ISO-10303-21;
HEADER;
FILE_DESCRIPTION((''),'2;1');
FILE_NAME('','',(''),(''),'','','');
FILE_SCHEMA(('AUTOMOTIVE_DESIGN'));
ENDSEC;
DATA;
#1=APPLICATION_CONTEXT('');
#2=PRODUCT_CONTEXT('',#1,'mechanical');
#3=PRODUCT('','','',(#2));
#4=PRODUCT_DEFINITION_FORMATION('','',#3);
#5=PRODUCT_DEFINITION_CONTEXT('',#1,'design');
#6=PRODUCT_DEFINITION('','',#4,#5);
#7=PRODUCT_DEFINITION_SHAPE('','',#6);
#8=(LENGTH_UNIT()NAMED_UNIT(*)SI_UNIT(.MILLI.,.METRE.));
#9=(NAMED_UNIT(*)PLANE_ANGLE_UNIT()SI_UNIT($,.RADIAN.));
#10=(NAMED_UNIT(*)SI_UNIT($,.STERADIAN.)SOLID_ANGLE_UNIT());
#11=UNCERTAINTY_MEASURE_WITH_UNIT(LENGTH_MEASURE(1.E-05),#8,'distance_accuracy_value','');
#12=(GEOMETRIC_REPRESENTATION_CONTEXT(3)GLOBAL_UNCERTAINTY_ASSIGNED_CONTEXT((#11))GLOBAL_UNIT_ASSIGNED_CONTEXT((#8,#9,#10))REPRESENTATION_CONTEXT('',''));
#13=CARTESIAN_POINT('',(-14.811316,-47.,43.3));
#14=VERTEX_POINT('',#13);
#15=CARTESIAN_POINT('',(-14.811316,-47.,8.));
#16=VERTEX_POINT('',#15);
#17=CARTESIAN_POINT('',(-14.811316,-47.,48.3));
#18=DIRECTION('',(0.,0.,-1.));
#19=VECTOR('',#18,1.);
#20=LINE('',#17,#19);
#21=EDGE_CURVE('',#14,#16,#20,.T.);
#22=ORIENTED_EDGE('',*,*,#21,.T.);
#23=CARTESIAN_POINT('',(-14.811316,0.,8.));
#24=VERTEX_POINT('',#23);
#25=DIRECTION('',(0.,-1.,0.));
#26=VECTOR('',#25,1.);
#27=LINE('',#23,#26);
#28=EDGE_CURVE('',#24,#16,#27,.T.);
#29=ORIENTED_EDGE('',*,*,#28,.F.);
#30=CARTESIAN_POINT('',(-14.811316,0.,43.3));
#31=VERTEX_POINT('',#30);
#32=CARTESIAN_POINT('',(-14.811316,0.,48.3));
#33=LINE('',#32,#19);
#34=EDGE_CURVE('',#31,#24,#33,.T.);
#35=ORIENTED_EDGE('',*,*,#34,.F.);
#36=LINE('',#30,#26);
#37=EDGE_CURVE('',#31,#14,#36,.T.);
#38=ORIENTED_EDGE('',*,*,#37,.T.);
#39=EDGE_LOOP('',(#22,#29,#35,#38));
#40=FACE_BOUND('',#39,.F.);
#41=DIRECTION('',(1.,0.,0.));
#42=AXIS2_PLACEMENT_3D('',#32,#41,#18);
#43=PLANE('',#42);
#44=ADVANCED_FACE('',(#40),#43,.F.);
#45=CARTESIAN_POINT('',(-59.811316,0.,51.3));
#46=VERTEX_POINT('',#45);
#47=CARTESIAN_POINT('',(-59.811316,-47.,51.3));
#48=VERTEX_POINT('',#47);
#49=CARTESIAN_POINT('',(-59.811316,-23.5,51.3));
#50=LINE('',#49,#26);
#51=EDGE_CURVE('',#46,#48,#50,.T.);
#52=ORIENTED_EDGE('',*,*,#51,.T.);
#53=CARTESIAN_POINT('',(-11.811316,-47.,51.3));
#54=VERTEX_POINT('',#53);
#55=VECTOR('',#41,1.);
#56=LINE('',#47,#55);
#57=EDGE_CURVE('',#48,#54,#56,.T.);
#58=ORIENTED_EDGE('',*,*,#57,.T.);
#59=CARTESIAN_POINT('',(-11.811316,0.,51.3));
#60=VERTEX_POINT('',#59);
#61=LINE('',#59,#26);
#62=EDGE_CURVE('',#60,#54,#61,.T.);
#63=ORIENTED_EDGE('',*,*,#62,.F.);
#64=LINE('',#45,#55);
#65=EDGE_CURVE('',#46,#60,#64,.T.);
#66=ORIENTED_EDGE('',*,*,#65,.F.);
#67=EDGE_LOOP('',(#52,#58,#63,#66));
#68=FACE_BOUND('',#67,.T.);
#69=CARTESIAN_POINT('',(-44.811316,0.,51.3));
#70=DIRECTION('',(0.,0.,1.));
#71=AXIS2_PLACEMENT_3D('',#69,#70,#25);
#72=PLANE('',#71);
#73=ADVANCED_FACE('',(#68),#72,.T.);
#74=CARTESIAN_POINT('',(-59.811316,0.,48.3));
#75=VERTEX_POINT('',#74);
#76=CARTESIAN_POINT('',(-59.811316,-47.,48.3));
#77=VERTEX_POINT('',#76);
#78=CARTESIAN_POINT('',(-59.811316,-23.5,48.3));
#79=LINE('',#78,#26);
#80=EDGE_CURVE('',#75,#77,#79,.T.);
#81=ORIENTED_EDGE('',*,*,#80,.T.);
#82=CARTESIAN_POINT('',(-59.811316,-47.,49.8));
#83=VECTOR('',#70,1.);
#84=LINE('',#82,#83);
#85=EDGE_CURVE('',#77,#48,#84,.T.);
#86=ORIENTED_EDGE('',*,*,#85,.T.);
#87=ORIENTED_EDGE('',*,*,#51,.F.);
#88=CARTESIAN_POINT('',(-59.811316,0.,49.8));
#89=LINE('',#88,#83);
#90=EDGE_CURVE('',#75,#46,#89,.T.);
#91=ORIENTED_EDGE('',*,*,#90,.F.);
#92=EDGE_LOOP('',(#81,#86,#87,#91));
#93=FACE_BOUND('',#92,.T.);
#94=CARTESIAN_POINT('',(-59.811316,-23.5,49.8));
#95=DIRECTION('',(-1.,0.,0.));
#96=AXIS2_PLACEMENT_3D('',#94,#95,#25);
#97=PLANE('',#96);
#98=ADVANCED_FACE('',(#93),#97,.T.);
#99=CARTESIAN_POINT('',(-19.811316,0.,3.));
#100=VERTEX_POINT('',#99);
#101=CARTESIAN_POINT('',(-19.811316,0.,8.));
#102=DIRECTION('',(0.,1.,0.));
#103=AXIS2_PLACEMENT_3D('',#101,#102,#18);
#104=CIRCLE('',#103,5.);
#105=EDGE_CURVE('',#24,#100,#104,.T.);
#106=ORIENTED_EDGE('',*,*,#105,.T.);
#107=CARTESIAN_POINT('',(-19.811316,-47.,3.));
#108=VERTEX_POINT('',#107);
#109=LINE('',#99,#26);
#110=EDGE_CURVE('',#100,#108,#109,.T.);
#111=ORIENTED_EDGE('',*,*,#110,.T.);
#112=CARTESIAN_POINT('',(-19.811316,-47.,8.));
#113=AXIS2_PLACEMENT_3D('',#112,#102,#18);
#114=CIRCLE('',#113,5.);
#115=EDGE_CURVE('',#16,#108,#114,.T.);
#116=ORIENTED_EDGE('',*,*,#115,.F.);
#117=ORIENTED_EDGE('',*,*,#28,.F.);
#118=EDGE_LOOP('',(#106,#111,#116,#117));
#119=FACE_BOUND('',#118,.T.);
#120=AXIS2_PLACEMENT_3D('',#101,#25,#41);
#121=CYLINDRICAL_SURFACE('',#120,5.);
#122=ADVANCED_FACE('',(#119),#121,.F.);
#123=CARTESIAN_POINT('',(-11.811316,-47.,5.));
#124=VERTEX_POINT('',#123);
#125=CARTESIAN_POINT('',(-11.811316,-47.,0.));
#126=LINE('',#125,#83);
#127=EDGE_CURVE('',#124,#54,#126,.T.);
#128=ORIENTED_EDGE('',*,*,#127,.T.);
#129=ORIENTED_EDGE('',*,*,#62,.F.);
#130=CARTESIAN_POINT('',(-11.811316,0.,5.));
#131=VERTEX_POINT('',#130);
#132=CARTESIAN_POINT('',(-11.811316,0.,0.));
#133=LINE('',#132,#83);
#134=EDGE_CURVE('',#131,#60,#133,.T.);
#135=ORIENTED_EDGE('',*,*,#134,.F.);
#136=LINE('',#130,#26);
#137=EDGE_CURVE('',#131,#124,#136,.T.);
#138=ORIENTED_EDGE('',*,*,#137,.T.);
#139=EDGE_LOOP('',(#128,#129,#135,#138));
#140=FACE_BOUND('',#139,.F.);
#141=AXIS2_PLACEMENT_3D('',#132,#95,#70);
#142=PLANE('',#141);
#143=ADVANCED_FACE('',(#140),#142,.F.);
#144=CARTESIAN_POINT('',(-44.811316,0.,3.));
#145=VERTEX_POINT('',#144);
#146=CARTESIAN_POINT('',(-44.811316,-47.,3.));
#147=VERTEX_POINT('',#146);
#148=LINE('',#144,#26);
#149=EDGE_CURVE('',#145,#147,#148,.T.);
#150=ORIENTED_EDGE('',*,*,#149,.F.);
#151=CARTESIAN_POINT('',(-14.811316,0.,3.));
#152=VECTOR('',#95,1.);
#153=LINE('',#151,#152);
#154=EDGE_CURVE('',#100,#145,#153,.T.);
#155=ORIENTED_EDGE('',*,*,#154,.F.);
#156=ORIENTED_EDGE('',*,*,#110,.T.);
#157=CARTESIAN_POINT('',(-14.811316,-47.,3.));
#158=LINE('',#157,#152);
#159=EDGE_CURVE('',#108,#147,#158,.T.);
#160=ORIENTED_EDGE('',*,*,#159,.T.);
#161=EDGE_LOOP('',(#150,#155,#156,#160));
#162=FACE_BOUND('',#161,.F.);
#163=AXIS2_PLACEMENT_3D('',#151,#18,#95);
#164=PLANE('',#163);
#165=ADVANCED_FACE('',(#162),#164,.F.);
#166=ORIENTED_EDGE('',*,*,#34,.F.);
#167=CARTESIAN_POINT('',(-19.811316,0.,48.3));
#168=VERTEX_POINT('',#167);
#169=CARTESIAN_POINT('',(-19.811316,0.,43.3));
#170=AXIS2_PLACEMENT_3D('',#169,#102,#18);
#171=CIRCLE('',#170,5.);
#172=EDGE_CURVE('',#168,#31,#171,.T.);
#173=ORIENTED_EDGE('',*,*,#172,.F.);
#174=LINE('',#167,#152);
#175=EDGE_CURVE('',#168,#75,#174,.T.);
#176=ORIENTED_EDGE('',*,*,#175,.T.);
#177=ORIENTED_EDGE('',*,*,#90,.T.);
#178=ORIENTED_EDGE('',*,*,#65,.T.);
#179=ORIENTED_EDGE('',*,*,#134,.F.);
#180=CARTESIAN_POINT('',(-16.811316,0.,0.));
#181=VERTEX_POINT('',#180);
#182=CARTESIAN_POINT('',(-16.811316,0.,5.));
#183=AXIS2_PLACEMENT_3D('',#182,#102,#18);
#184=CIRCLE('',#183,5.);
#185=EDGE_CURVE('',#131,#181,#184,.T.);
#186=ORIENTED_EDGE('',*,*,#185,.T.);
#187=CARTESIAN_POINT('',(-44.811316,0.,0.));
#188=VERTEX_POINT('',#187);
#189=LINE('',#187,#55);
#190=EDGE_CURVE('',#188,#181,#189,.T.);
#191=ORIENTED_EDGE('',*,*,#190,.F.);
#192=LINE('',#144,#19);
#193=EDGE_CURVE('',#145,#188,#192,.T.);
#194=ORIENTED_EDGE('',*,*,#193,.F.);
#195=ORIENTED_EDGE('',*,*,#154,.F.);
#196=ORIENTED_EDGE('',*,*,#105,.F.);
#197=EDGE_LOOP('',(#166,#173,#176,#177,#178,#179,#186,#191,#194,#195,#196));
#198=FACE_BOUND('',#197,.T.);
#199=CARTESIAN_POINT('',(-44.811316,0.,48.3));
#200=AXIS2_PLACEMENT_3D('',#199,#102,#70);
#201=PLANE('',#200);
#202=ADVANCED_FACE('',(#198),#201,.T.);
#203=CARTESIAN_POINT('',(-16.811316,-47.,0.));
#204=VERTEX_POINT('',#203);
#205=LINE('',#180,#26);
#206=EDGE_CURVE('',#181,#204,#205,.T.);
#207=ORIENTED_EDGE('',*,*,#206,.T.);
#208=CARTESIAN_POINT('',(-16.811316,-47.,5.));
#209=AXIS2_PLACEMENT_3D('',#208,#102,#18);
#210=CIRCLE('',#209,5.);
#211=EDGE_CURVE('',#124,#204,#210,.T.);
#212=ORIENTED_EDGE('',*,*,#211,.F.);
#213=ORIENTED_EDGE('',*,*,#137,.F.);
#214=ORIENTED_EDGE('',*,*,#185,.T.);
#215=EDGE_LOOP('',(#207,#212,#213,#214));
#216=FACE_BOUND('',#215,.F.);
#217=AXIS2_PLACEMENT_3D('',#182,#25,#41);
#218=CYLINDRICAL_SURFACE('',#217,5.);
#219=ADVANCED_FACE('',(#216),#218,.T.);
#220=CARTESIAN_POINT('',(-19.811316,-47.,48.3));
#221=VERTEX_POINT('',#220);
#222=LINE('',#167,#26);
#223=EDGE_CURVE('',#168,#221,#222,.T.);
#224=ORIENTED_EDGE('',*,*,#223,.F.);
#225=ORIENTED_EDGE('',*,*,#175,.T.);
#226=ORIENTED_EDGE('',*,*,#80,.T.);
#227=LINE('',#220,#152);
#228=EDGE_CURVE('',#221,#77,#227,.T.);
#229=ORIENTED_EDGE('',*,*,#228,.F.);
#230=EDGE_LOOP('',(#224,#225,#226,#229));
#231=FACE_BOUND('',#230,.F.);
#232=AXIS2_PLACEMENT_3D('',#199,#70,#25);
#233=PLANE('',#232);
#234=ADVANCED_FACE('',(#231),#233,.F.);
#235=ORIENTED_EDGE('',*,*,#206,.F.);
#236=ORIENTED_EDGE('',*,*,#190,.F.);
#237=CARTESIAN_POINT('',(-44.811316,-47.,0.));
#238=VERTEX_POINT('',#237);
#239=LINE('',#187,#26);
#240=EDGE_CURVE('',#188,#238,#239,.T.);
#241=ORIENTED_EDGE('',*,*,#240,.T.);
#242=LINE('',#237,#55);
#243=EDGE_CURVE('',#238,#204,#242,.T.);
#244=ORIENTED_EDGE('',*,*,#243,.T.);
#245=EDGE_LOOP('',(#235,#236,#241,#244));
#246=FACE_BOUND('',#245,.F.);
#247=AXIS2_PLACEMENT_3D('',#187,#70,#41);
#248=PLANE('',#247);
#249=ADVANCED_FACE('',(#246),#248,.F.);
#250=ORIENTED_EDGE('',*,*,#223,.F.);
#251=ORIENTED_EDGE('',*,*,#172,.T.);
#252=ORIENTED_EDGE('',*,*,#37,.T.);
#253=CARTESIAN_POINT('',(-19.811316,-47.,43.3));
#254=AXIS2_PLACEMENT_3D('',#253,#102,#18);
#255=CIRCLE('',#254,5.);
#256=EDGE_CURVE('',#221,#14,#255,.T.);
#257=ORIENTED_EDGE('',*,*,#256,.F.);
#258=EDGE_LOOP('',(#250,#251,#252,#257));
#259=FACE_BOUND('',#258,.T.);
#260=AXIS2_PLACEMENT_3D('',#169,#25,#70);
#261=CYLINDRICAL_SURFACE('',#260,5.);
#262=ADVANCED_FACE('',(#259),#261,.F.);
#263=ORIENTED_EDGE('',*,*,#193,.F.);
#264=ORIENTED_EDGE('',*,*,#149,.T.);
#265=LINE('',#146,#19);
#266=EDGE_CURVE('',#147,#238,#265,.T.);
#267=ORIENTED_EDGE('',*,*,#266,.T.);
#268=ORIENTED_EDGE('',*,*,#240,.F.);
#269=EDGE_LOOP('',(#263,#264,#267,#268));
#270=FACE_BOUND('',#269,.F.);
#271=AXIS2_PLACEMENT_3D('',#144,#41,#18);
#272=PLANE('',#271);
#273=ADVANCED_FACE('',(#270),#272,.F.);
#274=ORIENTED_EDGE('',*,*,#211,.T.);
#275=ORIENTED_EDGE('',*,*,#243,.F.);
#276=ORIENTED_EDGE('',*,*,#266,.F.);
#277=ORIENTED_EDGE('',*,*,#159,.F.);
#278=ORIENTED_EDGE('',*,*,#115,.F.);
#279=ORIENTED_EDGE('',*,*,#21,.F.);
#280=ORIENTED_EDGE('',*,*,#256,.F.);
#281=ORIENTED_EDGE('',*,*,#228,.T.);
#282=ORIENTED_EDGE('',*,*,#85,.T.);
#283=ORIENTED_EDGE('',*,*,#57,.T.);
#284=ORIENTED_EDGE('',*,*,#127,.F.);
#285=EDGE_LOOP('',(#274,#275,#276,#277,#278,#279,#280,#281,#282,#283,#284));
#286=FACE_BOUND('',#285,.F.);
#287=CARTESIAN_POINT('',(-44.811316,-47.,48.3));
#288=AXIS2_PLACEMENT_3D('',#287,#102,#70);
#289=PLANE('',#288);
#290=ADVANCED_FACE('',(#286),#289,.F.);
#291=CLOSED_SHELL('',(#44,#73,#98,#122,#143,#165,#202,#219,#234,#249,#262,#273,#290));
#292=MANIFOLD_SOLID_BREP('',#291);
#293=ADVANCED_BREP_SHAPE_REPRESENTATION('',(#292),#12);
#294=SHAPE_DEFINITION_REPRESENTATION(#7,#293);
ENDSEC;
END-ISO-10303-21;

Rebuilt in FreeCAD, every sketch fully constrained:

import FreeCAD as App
import Part
import Sketcher

V = App.Vector


def edges_at(feature, points):
    """Names of the edges that pass closest to the given points."""
    edges = feature.Shape.Edges
    near = lambda p: min(range(len(edges)), key=lambda i: edges[i].distToShape(Part.Vertex(*p))[0])
    return sorted({f"Edge{near(p) + 1}" for p in points})

doc = App.newDocument("Part")
body = doc.addObject("PartDesign::Body", "Body")

# Sketch on XZ plane
sketch1 = doc.addObject("Sketcher::SketchObject", "Sketch")
body.addObject(sketch1)
sketch1.AttachmentSupport = (doc.XZ_Plane, [""])
sketch1.MapMode = "FlatFace"
sketch1.addGeometry(Part.LineSegment(V(-11.8, 51.3, 0), V(-44.8, 51.3, 0)), False)
sketch1.addGeometry(Part.LineSegment(V(-44.8, 51.3, 0), V(-44.8, 48.3, 0)), False)
sketch1.addGeometry(Part.LineSegment(V(-44.8, 48.3, 0), V(-14.8, 48.3, 0)), False)
sketch1.addGeometry(Part.LineSegment(V(-14.8, 48.3, 0), V(-14.8, 3, 0)), False)
sketch1.addGeometry(Part.LineSegment(V(-14.8, 3, 0), V(-44.8, 3, 0)), False)
sketch1.addGeometry(Part.LineSegment(V(-44.8, 3, 0), V(-44.8, 0, 0)), False)
sketch1.addGeometry(Part.LineSegment(V(-44.8, 0, 0), V(-11.8, 0, 0)), False)
sketch1.addGeometry(Part.LineSegment(V(-11.8, 0, 0), V(-11.8, 51.3, 0)), False)
sketch1.addConstraint(Sketcher.Constraint("Coincident", 0, 2, 1, 1))
sketch1.addConstraint(Sketcher.Constraint("Coincident", 1, 2, 2, 1))
sketch1.addConstraint(Sketcher.Constraint("Coincident", 2, 2, 3, 1))
sketch1.addConstraint(Sketcher.Constraint("Coincident", 3, 2, 4, 1))
sketch1.addConstraint(Sketcher.Constraint("Coincident", 4, 2, 5, 1))
sketch1.addConstraint(Sketcher.Constraint("Coincident", 5, 2, 6, 1))
sketch1.addConstraint(Sketcher.Constraint("Coincident", 6, 2, 7, 1))
sketch1.addConstraint(Sketcher.Constraint("Coincident", 7, 2, 0, 1))
sketch1.addConstraint(Sketcher.Constraint("Horizontal", 0))
sketch1.addConstraint(Sketcher.Constraint("Vertical", 1))
sketch1.addConstraint(Sketcher.Constraint("Horizontal", 2))
sketch1.addConstraint(Sketcher.Constraint("Vertical", 3))
sketch1.addConstraint(Sketcher.Constraint("Horizontal", 4))
sketch1.addConstraint(Sketcher.Constraint("Vertical", 5))
sketch1.addConstraint(Sketcher.Constraint("Horizontal", 6))
sketch1.addConstraint(Sketcher.Constraint("Vertical", 7))
sketch1.addConstraint(Sketcher.Constraint("PointOnObject", 5, 2, -1))
sketch1.addConstraint(Sketcher.Constraint("Vertical", 1, 2, 4, 2))
sketch1.addConstraint(Sketcher.Constraint("Equal", 1, 5))
sketch1.addConstraint(Sketcher.Constraint("DistanceX", 0, 2, 0, 1, 33.0))
sketch1.addConstraint(Sketcher.Constraint("DistanceX", 2, 1, 2, 2, 30.0))
sketch1.addConstraint(Sketcher.Constraint("DistanceY", 1, 2, 1, 1, 3.0))
sketch1.addConstraint(Sketcher.Constraint("DistanceY", 3, 2, 3, 1, 45.3))
sketch1.addConstraint(Sketcher.Constraint("DistanceX", 0, 2, -1, 1, 44.811316))
pad1 = doc.addObject("PartDesign::Pad", "Pad")
body.addObject(pad1)
pad1.Profile = sketch1
pad1.Length = 47
doc.recompute()

fillet = doc.addObject("PartDesign::Fillet", "Fillet")
body.addObject(fillet)
fillet.Base = (pad1, edges_at(pad1, [(-14.811, -23.5, 3), (-14.811, -23.5, 48.3)]))
fillet.Radius = 5
doc.recompute()

fillet2 = doc.addObject("PartDesign::Fillet", "Fillet001")
body.addObject(fillet2)
fillet2.Base = (fillet, edges_at(fillet, [(-11.811, -23.5, 0)]))
fillet2.Radius = 5

# Sketch on YZ plane
sketch2 = doc.addObject("Sketcher::SketchObject", "Sketch001")
body.addObject(sketch2)
sketch2.AttachmentSupport = (doc.YZ_Plane, [""])
sketch2.MapMode = "FlatFace"
sketch2.AttachmentOffset = App.Placement(V(0, 0, -44.811316), App.Rotation())
sketch2.addGeometry(Part.LineSegment(V(0, 51.3, 0), V(0, 48.3, 0)), False)
sketch2.addGeometry(Part.LineSegment(V(0, 48.3, 0), V(-47, 48.3, 0)), False)
sketch2.addGeometry(Part.LineSegment(V(-47, 48.3, 0), V(-47, 51.3, 0)), False)
sketch2.addGeometry(Part.LineSegment(V(-47, 51.3, 0), V(0, 51.3, 0)), False)
sketch2.addConstraint(Sketcher.Constraint("Coincident", 0, 2, 1, 1))
sketch2.addConstraint(Sketcher.Constraint("Coincident", 1, 2, 2, 1))
sketch2.addConstraint(Sketcher.Constraint("Coincident", 2, 2, 3, 1))
sketch2.addConstraint(Sketcher.Constraint("Coincident", 3, 2, 0, 1))
sketch2.addConstraint(Sketcher.Constraint("Vertical", 0))
sketch2.addConstraint(Sketcher.Constraint("Horizontal", 1))
sketch2.addConstraint(Sketcher.Constraint("Vertical", 2))
sketch2.addConstraint(Sketcher.Constraint("Horizontal", 3))
sketch2.addConstraint(Sketcher.Constraint("PointOnObject", 0, 2, -2))
sketch2.addConstraint(Sketcher.Constraint("DistanceX", 1, 2, 1, 1, 47.0))
sketch2.addConstraint(Sketcher.Constraint("DistanceY", 0, 2, 0, 1, 3.0))
sketch2.addConstraint(Sketcher.Constraint("DistanceY", -1, 1, 0, 2, 48.3))
pad2 = doc.addObject("PartDesign::Pad", "Pad001")
body.addObject(pad2)
pad2.Profile = sketch2
pad2.Length = 15
pad2.Reversed = True

doc.recompute()
